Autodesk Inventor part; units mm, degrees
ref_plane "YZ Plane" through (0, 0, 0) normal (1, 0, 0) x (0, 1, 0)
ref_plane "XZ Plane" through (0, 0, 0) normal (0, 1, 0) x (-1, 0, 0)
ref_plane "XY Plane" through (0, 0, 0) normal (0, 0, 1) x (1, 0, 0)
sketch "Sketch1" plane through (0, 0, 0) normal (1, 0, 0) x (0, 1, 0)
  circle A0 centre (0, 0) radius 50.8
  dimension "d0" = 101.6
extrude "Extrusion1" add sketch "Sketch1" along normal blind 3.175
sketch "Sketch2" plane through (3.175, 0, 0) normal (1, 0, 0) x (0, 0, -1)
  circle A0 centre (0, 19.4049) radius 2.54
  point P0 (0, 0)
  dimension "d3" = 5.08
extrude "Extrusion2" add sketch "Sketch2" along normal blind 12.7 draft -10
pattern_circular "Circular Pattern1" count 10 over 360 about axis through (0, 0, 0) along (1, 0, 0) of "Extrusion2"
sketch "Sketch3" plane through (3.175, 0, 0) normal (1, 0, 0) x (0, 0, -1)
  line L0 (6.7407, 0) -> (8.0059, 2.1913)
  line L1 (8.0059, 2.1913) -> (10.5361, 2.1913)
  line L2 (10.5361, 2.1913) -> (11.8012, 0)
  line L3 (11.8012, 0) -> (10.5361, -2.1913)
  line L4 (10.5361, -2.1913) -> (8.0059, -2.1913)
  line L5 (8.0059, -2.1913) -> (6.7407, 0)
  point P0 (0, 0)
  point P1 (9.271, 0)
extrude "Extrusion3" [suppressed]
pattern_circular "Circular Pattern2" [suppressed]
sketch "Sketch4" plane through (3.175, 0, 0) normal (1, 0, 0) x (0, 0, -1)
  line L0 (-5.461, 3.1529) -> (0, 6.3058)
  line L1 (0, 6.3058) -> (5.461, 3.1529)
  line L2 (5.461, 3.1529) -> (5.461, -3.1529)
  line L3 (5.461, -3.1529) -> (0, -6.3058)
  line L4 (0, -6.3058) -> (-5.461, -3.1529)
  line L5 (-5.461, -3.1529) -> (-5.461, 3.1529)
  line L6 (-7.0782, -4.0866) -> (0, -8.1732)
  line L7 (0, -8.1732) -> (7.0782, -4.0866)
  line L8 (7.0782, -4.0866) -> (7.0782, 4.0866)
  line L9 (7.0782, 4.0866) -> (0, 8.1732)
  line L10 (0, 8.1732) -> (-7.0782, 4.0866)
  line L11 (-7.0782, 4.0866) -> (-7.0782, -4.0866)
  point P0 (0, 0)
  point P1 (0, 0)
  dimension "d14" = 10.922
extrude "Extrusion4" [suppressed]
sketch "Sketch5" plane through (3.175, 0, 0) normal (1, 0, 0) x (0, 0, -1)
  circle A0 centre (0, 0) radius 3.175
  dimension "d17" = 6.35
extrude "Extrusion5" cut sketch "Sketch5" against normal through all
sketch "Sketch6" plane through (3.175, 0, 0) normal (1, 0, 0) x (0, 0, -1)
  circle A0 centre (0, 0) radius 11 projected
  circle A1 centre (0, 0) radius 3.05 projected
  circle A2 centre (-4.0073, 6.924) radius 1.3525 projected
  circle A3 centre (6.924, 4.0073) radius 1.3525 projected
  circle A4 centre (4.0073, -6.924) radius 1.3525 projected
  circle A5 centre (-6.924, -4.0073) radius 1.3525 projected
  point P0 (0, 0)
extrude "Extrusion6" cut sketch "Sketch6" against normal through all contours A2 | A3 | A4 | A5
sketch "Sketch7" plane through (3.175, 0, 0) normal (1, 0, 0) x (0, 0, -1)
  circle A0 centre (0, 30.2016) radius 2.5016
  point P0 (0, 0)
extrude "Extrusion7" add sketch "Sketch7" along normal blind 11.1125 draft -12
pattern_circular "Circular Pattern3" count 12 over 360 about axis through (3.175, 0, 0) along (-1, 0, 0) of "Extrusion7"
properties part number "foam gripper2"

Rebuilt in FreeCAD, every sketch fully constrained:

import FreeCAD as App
import Part
import Sketcher
Q = App.Units.Quantity

doc = App.newDocument("Part")
body = doc.addObject("PartDesign::Body", "Body")

# Sketch on YZ plane
sketch1 = doc.addObject("Sketcher::SketchObject", "Sketch")
body.addObject(sketch1)
sketch1.AttachmentSupport = (doc.YZ_Plane, [""])
sketch1.MapMode = "FlatFace"
sketch1.addGeometry(Part.Circle(App.Vector(0, 0, 0), App.Vector(0, 0, 1), 51), False)
sketch1.addConstraint([
    Sketcher.Constraint("Coincident", 0, 3, -1, 1),
    Sketcher.Constraint("Diameter", 0, Q("4 in")),
])
pad1 = doc.addObject("PartDesign::Pad", "Pad")
body.addObject(pad1)
pad1.Profile = sketch1
pad1.Length = Q("0.125 in")

# Sketch on YZ plane
sketch2 = doc.addObject("Sketcher::SketchObject", "Sketch001")
body.addObject(sketch2)
sketch2.AttachmentSupport = (doc.YZ_Plane, [""])
sketch2.MapMode = "FlatFace"
sketch2.AttachmentOffset = App.Placement(App.Vector(0, 0, 0.125 * 25.4), App.Rotation())
sketch2.addGeometry(Part.Circle(App.Vector(19.4, 0, 0), App.Vector(0, 0, 1), 2.5), False)
sketch2.addConstraint([
    Sketcher.Constraint("PointOnObject", 0, 3, -1),
    Sketcher.Constraint("Diameter", 0, Q("0.2 in")),
    Sketcher.Constraint("DistanceX", -1, 1, 0, 3, 19.405),
])
pad2 = doc.addObject("PartDesign::Pad", "Pad001")
body.addObject(pad2)
pad2.Profile = sketch2
pad2.Length = Q("0.5 in")
pad2.TaperAngle = -10
doc.recompute()

polarpattern = doc.addObject("PartDesign::PolarPattern", "PolarPattern")
body.addObject(polarpattern)
polarpattern.Originals = [pad2]
polarpattern.Axis = (doc.X_Axis, [""])
polarpattern.Angle = 360
polarpattern.Occurrences = 10
body.Tip = polarpattern

# Sketch on YZ plane
sketch3 = doc.addObject("Sketcher::SketchObject", "Sketch002")
body.addObject(sketch3)
sketch3.AttachmentSupport = (doc.YZ_Plane, [""])
sketch3.MapMode = "FlatFace"
sketch3.AttachmentOffset = App.Placement(App.Vector(0, 0, 0.125 * 25.4), App.Rotation())
sketch3.addGeometry(Part.Circle(App.Vector(0, 0, 0), App.Vector(0, 0, 1), 3.2), False)
sketch3.addConstraint([
    Sketcher.Constraint("Coincident", 0, 3, -1, 1),
    Sketcher.Constraint("Diameter", 0, Q("0.25 in")),
])
pocket1 = doc.addObject("PartDesign::Pocket", "Pocket")
body.addObject(pocket1)
pocket1.Profile = sketch3
pocket1.Type = "ThroughAll"

# Sketch on YZ plane
sketch4 = doc.addObject("Sketcher::SketchObject", "Sketch003")
body.addObject(sketch4)
sketch4.AttachmentSupport = (doc.YZ_Plane, [""])
sketch4.MapMode = "FlatFace"
sketch4.AttachmentOffset = App.Placement(App.Vector(0, 0, 0.125 * 25.4), App.Rotation())
sketch4.addGeometry([
    Part.Circle(App.Vector(6.9, 4, 0), App.Vector(0, 0, 1), 1.4),
    Part.Circle(App.Vector(4, -6.9, 0), App.Vector(0, 0, 1), 1.4),
    Part.Circle(App.Vector(-6.9, -4, 0), App.Vector(0, 0, 1), 1.4),
    Part.Circle(App.Vector(-4, 6.9, 0), App.Vector(0, 0, 1), 1.4),
], False)
sketch4.addConstraint([
    Sketcher.Constraint("Equal", 0, 1),
    Sketcher.Constraint("Equal", 1, 2),
    Sketcher.Constraint("Equal", 2, 3),
    Sketcher.Constraint("Symmetric", 0, 3, 2, 3, -1, 1),
    Sketcher.Constraint("Symmetric", 1, 3, 3, 3, -1, 1),
    Sketcher.Constraint("Diameter", 0, Q("0.1065 in")),
    Sketcher.Constraint("DistanceX", -1, 1, 0, 3, Q("0.2726 in")),
    Sketcher.Constraint("DistanceY", 1, 3, -1, 1, Q("0.2726 in")),
    Sketcher.Constraint("DistanceY", -1, 1, 0, 3, 4.0073),
    Sketcher.Constraint("DistanceX", -1, 1, 1, 3, 4.0073),
])
pocket2 = doc.addObject("PartDesign::Pocket", "Pocket001")
body.addObject(pocket2)
pocket2.Profile = sketch4
pocket2.Type = "ThroughAll"

# Sketch on YZ plane
sketch5 = doc.addObject("Sketcher::SketchObject", "Sketch004")
body.addObject(sketch5)
sketch5.AttachmentSupport = (doc.YZ_Plane, [""])
sketch5.MapMode = "FlatFace"
sketch5.AttachmentOffset = App.Placement(App.Vector(0, 0, 0.125 * 25.4), App.Rotation())
sketch5.addGeometry(Part.Circle(App.Vector(30.2, 0, 0), App.Vector(0, 0, 1), 2.5), False)
sketch5.addConstraint([
    Sketcher.Constraint("PointOnObject", 0, 3, -1),
    Sketcher.Constraint("Diameter", 0, 5.0032),
    Sketcher.Constraint("DistanceX", -1, 1, 0, 3, 30.2016),
])
pad3 = doc.addObject("PartDesign::Pad", "Pad002")
body.addObject(pad3)
pad3.Profile = sketch5
pad3.Length = Q("0.4375 in")
pad3.TaperAngle = -12
doc.recompute()

polarpattern2 = doc.addObject("PartDesign::PolarPattern", "PolarPattern001")
body.addObject(polarpattern2)
polarpattern2.Originals = [pad3]
polarpattern2.Axis = (doc.X_Axis, [""])
polarpattern2.Angle = 360
polarpattern2.Occurrences = 12
body.Tip = polarpattern2

doc.recompute()
